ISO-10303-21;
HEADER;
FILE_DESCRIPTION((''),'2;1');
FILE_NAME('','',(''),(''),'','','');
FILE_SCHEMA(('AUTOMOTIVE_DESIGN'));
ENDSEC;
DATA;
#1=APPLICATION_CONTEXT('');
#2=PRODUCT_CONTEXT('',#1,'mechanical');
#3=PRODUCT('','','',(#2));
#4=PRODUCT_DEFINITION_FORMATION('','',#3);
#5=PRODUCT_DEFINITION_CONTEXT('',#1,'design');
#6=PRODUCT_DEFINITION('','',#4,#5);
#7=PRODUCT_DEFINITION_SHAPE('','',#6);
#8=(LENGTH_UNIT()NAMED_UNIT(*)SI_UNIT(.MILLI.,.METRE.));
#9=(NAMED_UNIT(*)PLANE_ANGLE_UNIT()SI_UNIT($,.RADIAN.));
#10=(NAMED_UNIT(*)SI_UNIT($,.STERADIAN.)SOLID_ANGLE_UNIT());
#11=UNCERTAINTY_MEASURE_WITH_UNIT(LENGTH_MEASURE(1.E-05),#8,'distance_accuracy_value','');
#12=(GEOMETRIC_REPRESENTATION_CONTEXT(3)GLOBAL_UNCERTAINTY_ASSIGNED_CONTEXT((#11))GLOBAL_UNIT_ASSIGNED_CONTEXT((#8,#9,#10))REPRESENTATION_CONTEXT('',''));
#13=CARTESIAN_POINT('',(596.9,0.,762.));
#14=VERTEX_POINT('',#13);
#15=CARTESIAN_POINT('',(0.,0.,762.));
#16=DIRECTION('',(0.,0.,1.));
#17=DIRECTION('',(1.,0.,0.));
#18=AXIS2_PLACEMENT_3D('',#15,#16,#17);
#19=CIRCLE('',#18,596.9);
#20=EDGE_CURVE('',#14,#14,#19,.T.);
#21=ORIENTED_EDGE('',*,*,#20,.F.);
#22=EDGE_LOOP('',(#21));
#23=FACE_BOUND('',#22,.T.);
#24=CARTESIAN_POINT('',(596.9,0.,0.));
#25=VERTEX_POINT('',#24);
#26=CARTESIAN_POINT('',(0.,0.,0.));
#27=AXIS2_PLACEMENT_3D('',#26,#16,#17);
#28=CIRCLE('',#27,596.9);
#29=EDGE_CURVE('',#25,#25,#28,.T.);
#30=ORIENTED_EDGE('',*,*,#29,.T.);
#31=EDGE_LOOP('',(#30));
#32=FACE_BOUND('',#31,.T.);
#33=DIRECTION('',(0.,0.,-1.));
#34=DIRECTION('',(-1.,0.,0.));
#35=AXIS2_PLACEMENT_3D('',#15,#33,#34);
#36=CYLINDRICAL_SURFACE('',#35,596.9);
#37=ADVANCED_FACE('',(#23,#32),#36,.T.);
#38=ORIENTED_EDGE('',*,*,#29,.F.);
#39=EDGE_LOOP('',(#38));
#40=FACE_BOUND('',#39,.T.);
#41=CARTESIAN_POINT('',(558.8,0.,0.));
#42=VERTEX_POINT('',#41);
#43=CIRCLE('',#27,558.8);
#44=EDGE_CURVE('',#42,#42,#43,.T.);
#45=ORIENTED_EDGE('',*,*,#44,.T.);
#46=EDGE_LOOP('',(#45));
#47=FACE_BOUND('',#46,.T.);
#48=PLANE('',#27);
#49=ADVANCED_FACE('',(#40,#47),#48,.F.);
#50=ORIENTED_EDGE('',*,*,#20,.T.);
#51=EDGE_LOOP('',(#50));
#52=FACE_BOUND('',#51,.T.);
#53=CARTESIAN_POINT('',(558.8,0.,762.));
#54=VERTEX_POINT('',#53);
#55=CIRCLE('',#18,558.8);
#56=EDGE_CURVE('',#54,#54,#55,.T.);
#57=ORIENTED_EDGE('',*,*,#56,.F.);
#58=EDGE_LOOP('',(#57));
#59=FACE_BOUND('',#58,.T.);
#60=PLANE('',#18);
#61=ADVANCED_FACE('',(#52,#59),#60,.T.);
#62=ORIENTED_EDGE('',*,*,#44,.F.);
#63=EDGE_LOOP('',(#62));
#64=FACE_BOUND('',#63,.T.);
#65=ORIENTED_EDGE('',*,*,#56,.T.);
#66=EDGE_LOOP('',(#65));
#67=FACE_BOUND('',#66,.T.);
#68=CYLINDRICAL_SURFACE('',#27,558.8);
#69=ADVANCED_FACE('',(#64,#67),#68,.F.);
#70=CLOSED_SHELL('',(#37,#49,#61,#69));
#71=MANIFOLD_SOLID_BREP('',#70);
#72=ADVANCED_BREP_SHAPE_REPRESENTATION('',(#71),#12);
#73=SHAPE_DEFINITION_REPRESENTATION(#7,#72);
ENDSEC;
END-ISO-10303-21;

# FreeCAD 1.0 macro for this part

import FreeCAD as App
import Part
import Sketcher
from FreeCAD import Vector
Q = App.Units.Quantity

doc = App.newDocument("Part")
body = doc.addObject("PartDesign::Body", "Body")

sketch1 = doc.addObject("Sketcher::SketchObject", "Sketch")
body.addObject(sketch1)
sketch1.AttachmentSupport = (doc.XY_Plane, [""])
sketch1.MapMode = "FlatFace"
sketch1.addGeometry(Part.Circle(Vector(0, 0, 0), Vector(0, 0, 1), 596.9), False)
sketch1.addConstraint(Sketcher.Constraint("Coincident", 0, 3, -1, 1))
sketch1.addConstraint(Sketcher.Constraint("Diameter", 0, Q("47 in")))
pad1 = doc.addObject("PartDesign::Pad", "Pad")
body.addObject(pad1)
pad1.Profile = sketch1
pad1.Length = Q("30 in")

sketch2 = doc.addObject("Sketcher::SketchObject", "Sketch001")
body.addObject(sketch2)
sketch2.AttachmentSupport = (doc.XY_Plane, [""])
sketch2.MapMode = "FlatFace"
sketch2.AttachmentOffset = App.Placement(Vector(0, 0, 30 * 25.4), App.Rotation())
sketch2.addGeometry(Part.Circle(Vector(0, 0, 0), Vector(0, 0, 1), 558.8), False)
sketch2.addConstraint(Sketcher.Constraint("Coincident", 0, 3, -1, 1))
sketch2.addConstraint(Sketcher.Constraint("Diameter", 0, Q("44 in")))
pocket1 = doc.addObject("PartDesign::Pocket", "Pocket")
body.addObject(pocket1)
pocket1.Profile = sketch2
pocket1.Length = Q("30 in")

doc.recompute()
